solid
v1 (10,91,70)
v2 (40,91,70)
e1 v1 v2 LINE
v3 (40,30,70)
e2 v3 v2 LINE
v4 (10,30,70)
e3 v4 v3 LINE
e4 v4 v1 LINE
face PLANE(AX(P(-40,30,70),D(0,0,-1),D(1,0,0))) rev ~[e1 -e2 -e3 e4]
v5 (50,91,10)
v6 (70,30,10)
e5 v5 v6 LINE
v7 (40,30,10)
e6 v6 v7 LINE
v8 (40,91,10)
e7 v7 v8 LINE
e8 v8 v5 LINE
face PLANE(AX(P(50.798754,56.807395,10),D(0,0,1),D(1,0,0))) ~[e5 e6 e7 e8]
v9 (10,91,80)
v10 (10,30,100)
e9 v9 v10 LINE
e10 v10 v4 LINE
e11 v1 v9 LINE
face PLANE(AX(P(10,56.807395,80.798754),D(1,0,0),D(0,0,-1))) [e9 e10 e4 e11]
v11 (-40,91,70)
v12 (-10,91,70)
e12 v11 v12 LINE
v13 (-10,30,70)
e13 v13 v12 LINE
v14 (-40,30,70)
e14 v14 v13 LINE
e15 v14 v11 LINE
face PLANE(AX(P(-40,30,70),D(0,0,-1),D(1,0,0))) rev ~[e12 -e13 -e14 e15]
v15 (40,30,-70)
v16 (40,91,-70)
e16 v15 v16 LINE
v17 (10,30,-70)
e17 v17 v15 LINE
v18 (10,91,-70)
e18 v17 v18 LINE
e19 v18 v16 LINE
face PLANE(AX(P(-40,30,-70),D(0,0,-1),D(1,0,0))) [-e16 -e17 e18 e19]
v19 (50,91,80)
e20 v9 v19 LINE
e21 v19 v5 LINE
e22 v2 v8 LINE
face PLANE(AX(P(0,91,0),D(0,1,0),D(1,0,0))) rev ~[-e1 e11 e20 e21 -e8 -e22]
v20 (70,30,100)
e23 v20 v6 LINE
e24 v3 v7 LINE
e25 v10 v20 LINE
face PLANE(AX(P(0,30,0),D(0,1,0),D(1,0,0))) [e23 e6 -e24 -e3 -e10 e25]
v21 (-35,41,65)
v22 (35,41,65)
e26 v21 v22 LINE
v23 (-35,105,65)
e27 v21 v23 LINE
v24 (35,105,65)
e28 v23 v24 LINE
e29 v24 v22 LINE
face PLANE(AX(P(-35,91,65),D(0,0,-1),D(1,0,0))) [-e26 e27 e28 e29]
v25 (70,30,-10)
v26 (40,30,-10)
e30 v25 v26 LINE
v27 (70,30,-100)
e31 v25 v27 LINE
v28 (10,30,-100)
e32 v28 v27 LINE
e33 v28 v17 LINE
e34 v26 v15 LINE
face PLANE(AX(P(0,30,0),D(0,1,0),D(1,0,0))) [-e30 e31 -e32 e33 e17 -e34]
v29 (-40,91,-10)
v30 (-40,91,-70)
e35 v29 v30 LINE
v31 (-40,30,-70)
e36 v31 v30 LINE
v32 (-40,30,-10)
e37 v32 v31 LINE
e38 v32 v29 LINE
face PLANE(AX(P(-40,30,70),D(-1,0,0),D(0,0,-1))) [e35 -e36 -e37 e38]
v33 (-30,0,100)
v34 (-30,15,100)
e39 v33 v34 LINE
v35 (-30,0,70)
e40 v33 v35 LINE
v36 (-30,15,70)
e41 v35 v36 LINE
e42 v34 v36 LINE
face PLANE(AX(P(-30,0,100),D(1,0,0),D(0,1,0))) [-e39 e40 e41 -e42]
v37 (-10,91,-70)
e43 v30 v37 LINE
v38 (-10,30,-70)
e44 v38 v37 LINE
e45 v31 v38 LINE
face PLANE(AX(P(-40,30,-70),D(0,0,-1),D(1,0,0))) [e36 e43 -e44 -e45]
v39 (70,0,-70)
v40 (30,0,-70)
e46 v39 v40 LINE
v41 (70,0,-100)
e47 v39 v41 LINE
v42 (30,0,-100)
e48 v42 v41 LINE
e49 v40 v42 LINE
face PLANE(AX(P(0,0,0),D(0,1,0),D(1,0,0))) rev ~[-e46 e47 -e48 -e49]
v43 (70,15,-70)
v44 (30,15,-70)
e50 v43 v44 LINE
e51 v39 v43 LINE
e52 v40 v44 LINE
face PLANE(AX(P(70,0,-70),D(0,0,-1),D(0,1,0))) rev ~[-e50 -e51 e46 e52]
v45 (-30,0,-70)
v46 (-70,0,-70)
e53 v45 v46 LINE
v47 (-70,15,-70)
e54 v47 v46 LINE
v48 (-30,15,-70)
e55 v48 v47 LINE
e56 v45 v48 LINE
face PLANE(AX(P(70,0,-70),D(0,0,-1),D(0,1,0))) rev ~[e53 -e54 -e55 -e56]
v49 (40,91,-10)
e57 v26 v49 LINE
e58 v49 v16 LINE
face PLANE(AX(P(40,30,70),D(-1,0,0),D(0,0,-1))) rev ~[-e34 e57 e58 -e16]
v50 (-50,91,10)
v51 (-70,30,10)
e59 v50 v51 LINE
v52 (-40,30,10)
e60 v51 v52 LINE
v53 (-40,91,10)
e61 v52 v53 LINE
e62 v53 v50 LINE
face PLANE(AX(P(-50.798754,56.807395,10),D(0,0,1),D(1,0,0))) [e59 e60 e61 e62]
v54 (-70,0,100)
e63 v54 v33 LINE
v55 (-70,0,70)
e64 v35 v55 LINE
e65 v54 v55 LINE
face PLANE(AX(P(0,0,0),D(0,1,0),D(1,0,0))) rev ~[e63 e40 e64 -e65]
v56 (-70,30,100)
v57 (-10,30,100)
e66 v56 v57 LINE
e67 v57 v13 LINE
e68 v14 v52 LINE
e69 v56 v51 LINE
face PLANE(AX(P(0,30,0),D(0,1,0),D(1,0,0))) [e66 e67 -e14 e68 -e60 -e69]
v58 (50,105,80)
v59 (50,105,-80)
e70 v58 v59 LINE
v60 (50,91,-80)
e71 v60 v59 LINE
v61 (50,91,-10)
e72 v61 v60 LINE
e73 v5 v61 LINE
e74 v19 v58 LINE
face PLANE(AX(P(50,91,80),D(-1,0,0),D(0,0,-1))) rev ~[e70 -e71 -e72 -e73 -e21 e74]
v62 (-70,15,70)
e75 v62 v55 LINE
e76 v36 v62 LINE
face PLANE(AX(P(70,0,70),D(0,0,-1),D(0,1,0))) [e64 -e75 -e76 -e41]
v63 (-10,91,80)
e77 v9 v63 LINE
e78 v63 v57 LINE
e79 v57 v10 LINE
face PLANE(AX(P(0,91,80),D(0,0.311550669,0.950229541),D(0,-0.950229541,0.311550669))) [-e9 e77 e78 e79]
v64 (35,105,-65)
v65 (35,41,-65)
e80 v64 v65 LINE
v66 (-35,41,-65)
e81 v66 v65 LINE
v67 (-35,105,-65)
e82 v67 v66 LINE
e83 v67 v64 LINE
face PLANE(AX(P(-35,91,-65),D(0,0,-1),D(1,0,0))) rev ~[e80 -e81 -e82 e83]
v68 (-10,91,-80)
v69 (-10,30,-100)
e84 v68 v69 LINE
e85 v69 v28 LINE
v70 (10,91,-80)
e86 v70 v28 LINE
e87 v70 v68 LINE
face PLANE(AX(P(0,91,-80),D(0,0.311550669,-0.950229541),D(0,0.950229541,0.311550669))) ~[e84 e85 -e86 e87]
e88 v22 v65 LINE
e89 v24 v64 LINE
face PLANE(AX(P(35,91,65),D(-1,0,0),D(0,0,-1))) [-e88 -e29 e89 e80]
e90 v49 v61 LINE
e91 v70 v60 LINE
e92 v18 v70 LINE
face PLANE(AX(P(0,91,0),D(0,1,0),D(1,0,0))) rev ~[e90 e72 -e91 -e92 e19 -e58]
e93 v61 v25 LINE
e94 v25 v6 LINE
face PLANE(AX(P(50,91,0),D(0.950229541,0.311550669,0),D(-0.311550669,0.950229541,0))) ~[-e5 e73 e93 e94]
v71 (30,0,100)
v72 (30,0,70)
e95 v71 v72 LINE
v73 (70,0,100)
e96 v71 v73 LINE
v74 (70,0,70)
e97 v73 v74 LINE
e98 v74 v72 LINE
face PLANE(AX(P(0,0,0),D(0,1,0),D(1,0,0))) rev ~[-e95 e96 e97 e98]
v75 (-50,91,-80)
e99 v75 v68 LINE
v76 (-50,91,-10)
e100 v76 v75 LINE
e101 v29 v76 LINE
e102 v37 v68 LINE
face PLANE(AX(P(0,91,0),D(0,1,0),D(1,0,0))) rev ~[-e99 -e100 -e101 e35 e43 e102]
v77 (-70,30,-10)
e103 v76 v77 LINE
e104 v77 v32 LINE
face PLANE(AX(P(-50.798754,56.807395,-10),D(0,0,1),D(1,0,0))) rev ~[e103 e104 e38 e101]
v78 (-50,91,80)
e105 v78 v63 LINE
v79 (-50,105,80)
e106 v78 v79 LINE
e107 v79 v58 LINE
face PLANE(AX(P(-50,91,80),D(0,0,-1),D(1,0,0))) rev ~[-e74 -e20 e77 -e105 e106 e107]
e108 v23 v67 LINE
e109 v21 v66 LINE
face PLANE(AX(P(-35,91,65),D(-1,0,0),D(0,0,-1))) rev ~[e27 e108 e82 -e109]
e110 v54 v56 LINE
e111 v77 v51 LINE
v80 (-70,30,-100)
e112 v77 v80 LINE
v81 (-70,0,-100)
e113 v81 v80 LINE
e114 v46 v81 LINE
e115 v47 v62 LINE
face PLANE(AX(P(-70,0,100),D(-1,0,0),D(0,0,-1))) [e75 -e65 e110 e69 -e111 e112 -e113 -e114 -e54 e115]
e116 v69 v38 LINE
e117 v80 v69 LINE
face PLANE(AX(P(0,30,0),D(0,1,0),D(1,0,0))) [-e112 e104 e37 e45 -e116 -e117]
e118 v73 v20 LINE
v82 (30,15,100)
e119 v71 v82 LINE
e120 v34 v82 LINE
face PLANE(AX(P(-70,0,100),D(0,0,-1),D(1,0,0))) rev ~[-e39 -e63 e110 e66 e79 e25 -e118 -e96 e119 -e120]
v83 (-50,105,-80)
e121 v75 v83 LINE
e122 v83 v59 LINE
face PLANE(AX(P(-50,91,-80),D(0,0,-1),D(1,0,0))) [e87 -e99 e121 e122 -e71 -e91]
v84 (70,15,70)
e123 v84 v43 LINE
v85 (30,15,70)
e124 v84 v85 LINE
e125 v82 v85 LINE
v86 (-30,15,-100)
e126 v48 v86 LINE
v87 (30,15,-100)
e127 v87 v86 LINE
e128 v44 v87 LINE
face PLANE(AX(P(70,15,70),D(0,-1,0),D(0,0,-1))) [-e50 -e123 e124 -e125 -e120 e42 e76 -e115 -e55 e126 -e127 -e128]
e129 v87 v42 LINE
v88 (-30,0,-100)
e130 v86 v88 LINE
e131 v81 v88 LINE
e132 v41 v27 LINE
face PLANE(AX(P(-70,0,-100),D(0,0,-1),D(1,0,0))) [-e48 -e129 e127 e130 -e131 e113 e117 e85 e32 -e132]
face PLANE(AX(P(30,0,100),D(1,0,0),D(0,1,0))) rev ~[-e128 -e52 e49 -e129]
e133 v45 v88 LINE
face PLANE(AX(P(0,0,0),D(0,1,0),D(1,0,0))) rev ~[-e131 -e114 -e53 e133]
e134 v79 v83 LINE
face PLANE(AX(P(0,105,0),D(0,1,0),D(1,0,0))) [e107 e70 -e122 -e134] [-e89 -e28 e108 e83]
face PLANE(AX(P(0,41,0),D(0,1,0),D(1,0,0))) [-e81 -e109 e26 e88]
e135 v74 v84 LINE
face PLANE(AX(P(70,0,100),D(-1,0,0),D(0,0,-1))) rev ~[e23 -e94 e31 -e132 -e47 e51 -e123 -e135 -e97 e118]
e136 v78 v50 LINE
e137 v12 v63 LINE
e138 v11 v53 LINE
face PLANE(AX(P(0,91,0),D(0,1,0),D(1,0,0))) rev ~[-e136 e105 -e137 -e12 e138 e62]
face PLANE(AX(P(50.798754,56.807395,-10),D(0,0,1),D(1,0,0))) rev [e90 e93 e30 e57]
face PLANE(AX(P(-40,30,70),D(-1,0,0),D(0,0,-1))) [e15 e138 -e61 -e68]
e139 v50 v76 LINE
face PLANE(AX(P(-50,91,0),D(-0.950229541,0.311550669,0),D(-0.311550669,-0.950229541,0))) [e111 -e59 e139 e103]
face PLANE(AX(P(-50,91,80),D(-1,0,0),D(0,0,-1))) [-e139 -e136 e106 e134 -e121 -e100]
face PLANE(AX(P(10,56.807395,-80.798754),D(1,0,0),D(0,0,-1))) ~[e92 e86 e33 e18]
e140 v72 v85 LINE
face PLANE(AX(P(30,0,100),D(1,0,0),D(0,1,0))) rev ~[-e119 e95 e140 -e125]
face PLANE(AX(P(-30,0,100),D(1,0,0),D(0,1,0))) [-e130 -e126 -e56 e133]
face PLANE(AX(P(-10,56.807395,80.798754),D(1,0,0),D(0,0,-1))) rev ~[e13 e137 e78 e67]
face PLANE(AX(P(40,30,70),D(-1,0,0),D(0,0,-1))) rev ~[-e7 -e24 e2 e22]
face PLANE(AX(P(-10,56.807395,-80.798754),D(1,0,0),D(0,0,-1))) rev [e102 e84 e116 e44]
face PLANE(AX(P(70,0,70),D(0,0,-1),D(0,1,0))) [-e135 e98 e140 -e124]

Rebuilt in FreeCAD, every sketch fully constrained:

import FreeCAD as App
import Part
import Sketcher


def add_polygon(sketch, points):
    """Adds a closed chain of lines whose ends are joined by coincident constraints."""
    first, n = sketch.GeometryCount, len(points)
    for a, b in zip(points, points[1:] + points[:1]):
        sketch.addGeometry(Part.LineSegment(App.Vector(*a, 0), App.Vector(*b, 0)), False)
    for i in range(n):
        sketch.addConstraint(Sketcher.Constraint("Coincident", first + i, 2, first + (i + 1) % n, 1))

doc = App.newDocument("Part")
params = doc.addObject("Spreadsheet::Sheet", "Params")
for row, (alias, value) in enumerate([
    ("sketch1_width", "140 mm"),
    ("sketch1_height", "200 mm"),
    ("pad1_length", "30 mm"),
    ("sketch2_width", "60 mm"),
    ("sketch2_height", "15 mm"),
    ("sketch3_width", "15 mm"),
    ("sketch3_height", "140 mm"),
    ("sketch4_width", "80 mm"),
    ("sketch4_height", "140 mm"),
    ("pad2_length", "61 mm"),
    ("sketch5_width", "100 mm"),
    ("sketch5_width2", "70 mm"),
    ("sketch5_height", "160 mm"),
    ("sketch5_height2", "130 mm"),
    ("pad3_length", "14 mm"),
    ("sketch6_width", "70 mm"),
    ("sketch6_height", "130 mm"),
    ("pocket3_length", "50 mm"),
    ("sketch7_width", "30 mm"),
    ("sketch7_width2", "10 mm"),
    ("sketch7_height", "61 mm"),
    ("pad4_length", "20 mm"),
    ("sketch8_width", "61 mm"),
    ("sketch8_height", "30 mm"),
    ("sketch8_height2", "10 mm"),
    ("pad5_length", "20 mm"),
], start=1):
    params.set(f"A{row}", alias)
    params.set(f"B{row}", "=" + value)
    params.setAlias(f"B{row}", alias)

body = doc.addObject("PartDesign::Body", "Body")

# Sketch on XZ plane
sketch1 = body.newObject("Sketcher::SketchObject", "Sketch")
sketch1.AttachmentSupport = (doc.getObject("XZ_Plane"), [""])
sketch1.MapMode = "FlatFace"
add_polygon(sketch1, [(-70, -100), (-70, 100), (70, 100), (70, -100)])  # lines 0-3
sketch1.addConstraint([
    Sketcher.Constraint("Vertical", 0),
    Sketcher.Constraint("Horizontal", 1),
    Sketcher.Constraint("Vertical", 2),
    Sketcher.Constraint("Horizontal", 3),
    Sketcher.Constraint("Symmetric", 0, 2, 2, 2, -1, 1),
    Sketcher.Constraint("DistanceX", 1, 1, 1, 2, 140.0),
    Sketcher.Constraint("DistanceY", 0, 1, 0, 2, 200.0),
])
sketch1.setExpression("Constraints[9]", "Params.sketch1_width")
sketch1.setExpression("Constraints[10]", "Params.sketch1_height")
pad1 = body.newObject("PartDesign::Pad", "Pad")
pad1.Profile = sketch1
pad1.setExpression("Length", "Params.pad1_length")
pad1.Reversed = True

# Sketch on XY plane
sketch2 = body.newObject("Sketcher::SketchObject", "Sketch001")
sketch2.AttachmentSupport = (doc.getObject("XY_Plane"), [""])
sketch2.MapMode = "FlatFace"
sketch2.AttachmentOffset = App.Placement(App.Vector(0, 0, 100), App.Rotation())
add_polygon(sketch2, [(-30, 15), (-30, 0), (30, 0), (30, 15)])  # lines 0-3
sketch2.addConstraint([
    Sketcher.Constraint("Vertical", 0),
    Sketcher.Constraint("Horizontal", 1),
    Sketcher.Constraint("Vertical", 2),
    Sketcher.Constraint("Horizontal", 3),
    Sketcher.Constraint("Symmetric", 0, 2, 1, 2, -1, 1),
    Sketcher.Constraint("DistanceX", 1, 1, 1, 2, 60.0),
    Sketcher.Constraint("DistanceY", 0, 2, 0, 1, 15.0),
])
sketch2.setExpression("Constraints[9]", "Params.sketch2_width")
sketch2.setExpression("Constraints[10]", "Params.sketch2_height")
pocket1 = body.newObject("PartDesign::Pocket", "Pocket")
pocket1.Profile = sketch2
pocket1.Type = "ThroughAll"

# Sketch on YZ plane
sketch3 = body.newObject("Sketcher::SketchObject", "Sketch002")
sketch3.AttachmentSupport = (doc.getObject("YZ_Plane"), [""])
sketch3.MapMode = "FlatFace"
sketch3.AttachmentOffset = App.Placement(App.Vector(0, 0, 70), App.Rotation())
add_polygon(sketch3, [(15, 70), (0, 70), (0, -70), (15, -70)])  # lines 0-3
sketch3.addConstraint([
    Sketcher.Constraint("Horizontal", 0),
    Sketcher.Constraint("Vertical", 1),
    Sketcher.Constraint("Horizontal", 2),
    Sketcher.Constraint("Vertical", 3),
    Sketcher.Constraint("Symmetric", 0, 2, 1, 2, -1, 1),
    Sketcher.Constraint("DistanceX", 0, 2, 0, 1, 15.0),
    Sketcher.Constraint("DistanceY", 1, 2, 1, 1, 140.0),
])
sketch3.setExpression("Constraints[9]", "Params.sketch3_width")
sketch3.setExpression("Constraints[10]", "Params.sketch3_height")
pocket2 = body.newObject("PartDesign::Pocket", "Pocket001")
pocket2.Profile = sketch3
pocket2.Type = "ThroughAll"

# Sketch on XZ plane
sketch4 = body.newObject("Sketcher::SketchObject", "Sketch003")
sketch4.AttachmentSupport = (doc.getObject("XZ_Plane"), [""])
sketch4.MapMode = "FlatFace"
sketch4.AttachmentOffset = App.Placement(App.Vector(0, 0, -30), App.Rotation())
add_polygon(sketch4, [(-40, -70), (-40, 70), (40, 70), (40, -70)])  # lines 0-3
sketch4.addConstraint([
    Sketcher.Constraint("Vertical", 0),
    Sketcher.Constraint("Horizontal", 1),
    Sketcher.Constraint("Vertical", 2),
    Sketcher.Constraint("Horizontal", 3),
    Sketcher.Constraint("Symmetric", 0, 2, 2, 2, -1, 1),
    Sketcher.Constraint("DistanceX", 1, 1, 1, 2, 80.0),
    Sketcher.Constraint("DistanceY", 0, 1, 0, 2, 140.0),
])
sketch4.setExpression("Constraints[9]", "Params.sketch4_width")
sketch4.setExpression("Constraints[10]", "Params.sketch4_height")
pad2 = body.newObject("PartDesign::Pad", "Pad001")
pad2.Profile = sketch4
pad2.setExpression("Length", "Params.pad2_length")
pad2.Reversed = True

# Sketch on XZ plane
sketch5 = body.newObject("Sketcher::SketchObject", "Sketch004")
sketch5.AttachmentSupport = (doc.getObject("XZ_Plane"), [""])
sketch5.MapMode = "FlatFace"
sketch5.AttachmentOffset = App.Placement(App.Vector(0, 0, -91), App.Rotation())
add_polygon(sketch5, [(-50, -80), (-50, 80), (50, 80), (50, -80)])  # lines 0-3
add_polygon(sketch5, [(35, 65), (-35, 65), (-35, -65), (35, -65)])  # lines 4-7
sketch5.addConstraint([
    Sketcher.Constraint("Vertical", 0),
    Sketcher.Constraint("Horizontal", 1),
    Sketcher.Constraint("Vertical", 2),
    Sketcher.Constraint("Horizontal", 3),
    Sketcher.Constraint("Horizontal", 4),
    Sketcher.Constraint("Vertical", 5),
    Sketcher.Constraint("Horizontal", 6),
    Sketcher.Constraint("Vertical", 7),
    Sketcher.Constraint("Symmetric", 0, 2, 2, 2, -1, 1),
    Sketcher.Constraint("Symmetric", 4, 2, 6, 2, -1, 1),
    Sketcher.Constraint("DistanceX", 1, 1, 1, 2, 100.0),
    Sketcher.Constraint("DistanceX", 4, 2, 4, 1, 70.0),
    Sketcher.Constraint("DistanceY", 0, 1, 0, 2, 160.0),
    Sketcher.Constraint("DistanceY", 5, 2, 5, 1, 130.0),
])
sketch5.setExpression("Constraints[18]", "Params.sketch5_width")
sketch5.setExpression("Constraints[19]", "Params.sketch5_width2")
sketch5.setExpression("Constraints[20]", "Params.sketch5_height")
sketch5.setExpression("Constraints[21]", "Params.sketch5_height2")
pad3 = body.newObject("PartDesign::Pad", "Pad002")
pad3.Profile = sketch5
pad3.setExpression("Length", "Params.pad3_length")
pad3.Reversed = True

# Sketch on XZ plane
sketch6 = body.newObject("Sketcher::SketchObject", "Sketch005")
sketch6.AttachmentSupport = (doc.getObject("XZ_Plane"), [""])
sketch6.MapMode = "FlatFace"
sketch6.AttachmentOffset = App.Placement(App.Vector(0, 0, -91), App.Rotation())
add_polygon(sketch6, [(-35, -65), (-35, 65), (35, 65), (35, -65)])  # lines 0-3
sketch6.addConstraint([
    Sketcher.Constraint("Vertical", 0),
    Sketcher.Constraint("Horizontal", 1),
    Sketcher.Constraint("Vertical", 2),
    Sketcher.Constraint("Horizontal", 3),
    Sketcher.Constraint("Symmetric", 0, 2, 2, 2, -1, 1),
    Sketcher.Constraint("DistanceX", 1, 1, 1, 2, 70.0),
    Sketcher.Constraint("DistanceY", 0, 1, 0, 2, 130.0),
])
sketch6.setExpression("Constraints[9]", "Params.sketch6_width")
sketch6.setExpression("Constraints[10]", "Params.sketch6_height")
pocket3 = body.newObject("PartDesign::Pocket", "Pocket002")
pocket3.Profile = sketch6
pocket3.setExpression("Length", "Params.pocket3_length")
pocket3.Reversed = True

# Sketch on XY plane
sketch7 = body.newObject("Sketcher::SketchObject", "Sketch006")
sketch7.AttachmentSupport = (doc.getObject("XY_Plane"), [""])
sketch7.MapMode = "FlatFace"
add_polygon(sketch7, [(-50, 91), (-70, 30), (-40, 30), (-40, 91)])  # lines 0-3
sketch7.addConstraint([
    Sketcher.Constraint("Horizontal", 1),
    Sketcher.Constraint("Vertical", 2),
    Sketcher.Constraint("Horizontal", 3),
    Sketcher.Constraint("DistanceX", 1, 1, 1, 2, 30.0),
    Sketcher.Constraint("DistanceX", 3, 2, 3, 1, 10.0),
    Sketcher.Constraint("DistanceY", 2, 1, 2, 2, 61.0),
    Sketcher.Constraint("DistanceX", 0, 2, -1, 1, 70.0),
    Sketcher.Constraint("DistanceY", -1, 1, 0, 2, 30.0),
])
sketch7.setExpression("Constraints[7]", "Params.sketch7_width")
sketch7.setExpression("Constraints[8]", "Params.sketch7_width2")
sketch7.setExpression("Constraints[9]", "Params.sketch7_height")
pad4 = body.newObject("PartDesign::Pad", "Pad003")
pad4.Profile = sketch7
pad4.setExpression("Length", "Params.pad4_length")
pad4.Midplane = True
doc.recompute()

mirrored = body.newObject("PartDesign::Mirrored", "Mirrored")
mirrored.Originals = [pad4]
mirrored.MirrorPlane = (doc.getObject("YZ_Plane"), [""])
body.Tip = mirrored

# Sketch on YZ plane
sketch8 = body.newObject("Sketcher::SketchObject", "Sketch007")
sketch8.AttachmentSupport = (doc.getObject("YZ_Plane"), [""])
sketch8.MapMode = "FlatFace"
add_polygon(sketch8, [(91, 80), (30, 100), (30, 70), (91, 70)])  # lines 0-3
sketch8.addConstraint([
    Sketcher.Constraint("Vertical", 1),
    Sketcher.Constraint("Horizontal", 2),
    Sketcher.Constraint("Vertical", 3),
    Sketcher.Constraint("DistanceX", 2, 1, 2, 2, 61.0),
    Sketcher.Constraint("DistanceY", 1, 2, 1, 1, 30.0),
    Sketcher.Constraint("DistanceY", 3, 1, 3, 2, 10.0),
    Sketcher.Constraint("DistanceX", -1, 1, 0, 2, 30.0),
    Sketcher.Constraint("DistanceY", -1, 1, 0, 2, 100.0),
])
sketch8.setExpression("Constraints[7]", "Params.sketch8_width")
sketch8.setExpression("Constraints[8]", "Params.sketch8_height")
sketch8.setExpression("Constraints[9]", "Params.sketch8_height2")
pad5 = body.newObject("PartDesign::Pad", "Pad004")
pad5.Profile = sketch8
pad5.setExpression("Length", "Params.pad5_length")
pad5.Midplane = True
doc.recompute()

mirrored2 = body.newObject("PartDesign::Mirrored", "Mirrored001")
mirrored2.Originals = [pad5]
mirrored2.MirrorPlane = (doc.getObject("XY_Plane"), [""])
body.Tip = mirrored2

doc.recompute()
